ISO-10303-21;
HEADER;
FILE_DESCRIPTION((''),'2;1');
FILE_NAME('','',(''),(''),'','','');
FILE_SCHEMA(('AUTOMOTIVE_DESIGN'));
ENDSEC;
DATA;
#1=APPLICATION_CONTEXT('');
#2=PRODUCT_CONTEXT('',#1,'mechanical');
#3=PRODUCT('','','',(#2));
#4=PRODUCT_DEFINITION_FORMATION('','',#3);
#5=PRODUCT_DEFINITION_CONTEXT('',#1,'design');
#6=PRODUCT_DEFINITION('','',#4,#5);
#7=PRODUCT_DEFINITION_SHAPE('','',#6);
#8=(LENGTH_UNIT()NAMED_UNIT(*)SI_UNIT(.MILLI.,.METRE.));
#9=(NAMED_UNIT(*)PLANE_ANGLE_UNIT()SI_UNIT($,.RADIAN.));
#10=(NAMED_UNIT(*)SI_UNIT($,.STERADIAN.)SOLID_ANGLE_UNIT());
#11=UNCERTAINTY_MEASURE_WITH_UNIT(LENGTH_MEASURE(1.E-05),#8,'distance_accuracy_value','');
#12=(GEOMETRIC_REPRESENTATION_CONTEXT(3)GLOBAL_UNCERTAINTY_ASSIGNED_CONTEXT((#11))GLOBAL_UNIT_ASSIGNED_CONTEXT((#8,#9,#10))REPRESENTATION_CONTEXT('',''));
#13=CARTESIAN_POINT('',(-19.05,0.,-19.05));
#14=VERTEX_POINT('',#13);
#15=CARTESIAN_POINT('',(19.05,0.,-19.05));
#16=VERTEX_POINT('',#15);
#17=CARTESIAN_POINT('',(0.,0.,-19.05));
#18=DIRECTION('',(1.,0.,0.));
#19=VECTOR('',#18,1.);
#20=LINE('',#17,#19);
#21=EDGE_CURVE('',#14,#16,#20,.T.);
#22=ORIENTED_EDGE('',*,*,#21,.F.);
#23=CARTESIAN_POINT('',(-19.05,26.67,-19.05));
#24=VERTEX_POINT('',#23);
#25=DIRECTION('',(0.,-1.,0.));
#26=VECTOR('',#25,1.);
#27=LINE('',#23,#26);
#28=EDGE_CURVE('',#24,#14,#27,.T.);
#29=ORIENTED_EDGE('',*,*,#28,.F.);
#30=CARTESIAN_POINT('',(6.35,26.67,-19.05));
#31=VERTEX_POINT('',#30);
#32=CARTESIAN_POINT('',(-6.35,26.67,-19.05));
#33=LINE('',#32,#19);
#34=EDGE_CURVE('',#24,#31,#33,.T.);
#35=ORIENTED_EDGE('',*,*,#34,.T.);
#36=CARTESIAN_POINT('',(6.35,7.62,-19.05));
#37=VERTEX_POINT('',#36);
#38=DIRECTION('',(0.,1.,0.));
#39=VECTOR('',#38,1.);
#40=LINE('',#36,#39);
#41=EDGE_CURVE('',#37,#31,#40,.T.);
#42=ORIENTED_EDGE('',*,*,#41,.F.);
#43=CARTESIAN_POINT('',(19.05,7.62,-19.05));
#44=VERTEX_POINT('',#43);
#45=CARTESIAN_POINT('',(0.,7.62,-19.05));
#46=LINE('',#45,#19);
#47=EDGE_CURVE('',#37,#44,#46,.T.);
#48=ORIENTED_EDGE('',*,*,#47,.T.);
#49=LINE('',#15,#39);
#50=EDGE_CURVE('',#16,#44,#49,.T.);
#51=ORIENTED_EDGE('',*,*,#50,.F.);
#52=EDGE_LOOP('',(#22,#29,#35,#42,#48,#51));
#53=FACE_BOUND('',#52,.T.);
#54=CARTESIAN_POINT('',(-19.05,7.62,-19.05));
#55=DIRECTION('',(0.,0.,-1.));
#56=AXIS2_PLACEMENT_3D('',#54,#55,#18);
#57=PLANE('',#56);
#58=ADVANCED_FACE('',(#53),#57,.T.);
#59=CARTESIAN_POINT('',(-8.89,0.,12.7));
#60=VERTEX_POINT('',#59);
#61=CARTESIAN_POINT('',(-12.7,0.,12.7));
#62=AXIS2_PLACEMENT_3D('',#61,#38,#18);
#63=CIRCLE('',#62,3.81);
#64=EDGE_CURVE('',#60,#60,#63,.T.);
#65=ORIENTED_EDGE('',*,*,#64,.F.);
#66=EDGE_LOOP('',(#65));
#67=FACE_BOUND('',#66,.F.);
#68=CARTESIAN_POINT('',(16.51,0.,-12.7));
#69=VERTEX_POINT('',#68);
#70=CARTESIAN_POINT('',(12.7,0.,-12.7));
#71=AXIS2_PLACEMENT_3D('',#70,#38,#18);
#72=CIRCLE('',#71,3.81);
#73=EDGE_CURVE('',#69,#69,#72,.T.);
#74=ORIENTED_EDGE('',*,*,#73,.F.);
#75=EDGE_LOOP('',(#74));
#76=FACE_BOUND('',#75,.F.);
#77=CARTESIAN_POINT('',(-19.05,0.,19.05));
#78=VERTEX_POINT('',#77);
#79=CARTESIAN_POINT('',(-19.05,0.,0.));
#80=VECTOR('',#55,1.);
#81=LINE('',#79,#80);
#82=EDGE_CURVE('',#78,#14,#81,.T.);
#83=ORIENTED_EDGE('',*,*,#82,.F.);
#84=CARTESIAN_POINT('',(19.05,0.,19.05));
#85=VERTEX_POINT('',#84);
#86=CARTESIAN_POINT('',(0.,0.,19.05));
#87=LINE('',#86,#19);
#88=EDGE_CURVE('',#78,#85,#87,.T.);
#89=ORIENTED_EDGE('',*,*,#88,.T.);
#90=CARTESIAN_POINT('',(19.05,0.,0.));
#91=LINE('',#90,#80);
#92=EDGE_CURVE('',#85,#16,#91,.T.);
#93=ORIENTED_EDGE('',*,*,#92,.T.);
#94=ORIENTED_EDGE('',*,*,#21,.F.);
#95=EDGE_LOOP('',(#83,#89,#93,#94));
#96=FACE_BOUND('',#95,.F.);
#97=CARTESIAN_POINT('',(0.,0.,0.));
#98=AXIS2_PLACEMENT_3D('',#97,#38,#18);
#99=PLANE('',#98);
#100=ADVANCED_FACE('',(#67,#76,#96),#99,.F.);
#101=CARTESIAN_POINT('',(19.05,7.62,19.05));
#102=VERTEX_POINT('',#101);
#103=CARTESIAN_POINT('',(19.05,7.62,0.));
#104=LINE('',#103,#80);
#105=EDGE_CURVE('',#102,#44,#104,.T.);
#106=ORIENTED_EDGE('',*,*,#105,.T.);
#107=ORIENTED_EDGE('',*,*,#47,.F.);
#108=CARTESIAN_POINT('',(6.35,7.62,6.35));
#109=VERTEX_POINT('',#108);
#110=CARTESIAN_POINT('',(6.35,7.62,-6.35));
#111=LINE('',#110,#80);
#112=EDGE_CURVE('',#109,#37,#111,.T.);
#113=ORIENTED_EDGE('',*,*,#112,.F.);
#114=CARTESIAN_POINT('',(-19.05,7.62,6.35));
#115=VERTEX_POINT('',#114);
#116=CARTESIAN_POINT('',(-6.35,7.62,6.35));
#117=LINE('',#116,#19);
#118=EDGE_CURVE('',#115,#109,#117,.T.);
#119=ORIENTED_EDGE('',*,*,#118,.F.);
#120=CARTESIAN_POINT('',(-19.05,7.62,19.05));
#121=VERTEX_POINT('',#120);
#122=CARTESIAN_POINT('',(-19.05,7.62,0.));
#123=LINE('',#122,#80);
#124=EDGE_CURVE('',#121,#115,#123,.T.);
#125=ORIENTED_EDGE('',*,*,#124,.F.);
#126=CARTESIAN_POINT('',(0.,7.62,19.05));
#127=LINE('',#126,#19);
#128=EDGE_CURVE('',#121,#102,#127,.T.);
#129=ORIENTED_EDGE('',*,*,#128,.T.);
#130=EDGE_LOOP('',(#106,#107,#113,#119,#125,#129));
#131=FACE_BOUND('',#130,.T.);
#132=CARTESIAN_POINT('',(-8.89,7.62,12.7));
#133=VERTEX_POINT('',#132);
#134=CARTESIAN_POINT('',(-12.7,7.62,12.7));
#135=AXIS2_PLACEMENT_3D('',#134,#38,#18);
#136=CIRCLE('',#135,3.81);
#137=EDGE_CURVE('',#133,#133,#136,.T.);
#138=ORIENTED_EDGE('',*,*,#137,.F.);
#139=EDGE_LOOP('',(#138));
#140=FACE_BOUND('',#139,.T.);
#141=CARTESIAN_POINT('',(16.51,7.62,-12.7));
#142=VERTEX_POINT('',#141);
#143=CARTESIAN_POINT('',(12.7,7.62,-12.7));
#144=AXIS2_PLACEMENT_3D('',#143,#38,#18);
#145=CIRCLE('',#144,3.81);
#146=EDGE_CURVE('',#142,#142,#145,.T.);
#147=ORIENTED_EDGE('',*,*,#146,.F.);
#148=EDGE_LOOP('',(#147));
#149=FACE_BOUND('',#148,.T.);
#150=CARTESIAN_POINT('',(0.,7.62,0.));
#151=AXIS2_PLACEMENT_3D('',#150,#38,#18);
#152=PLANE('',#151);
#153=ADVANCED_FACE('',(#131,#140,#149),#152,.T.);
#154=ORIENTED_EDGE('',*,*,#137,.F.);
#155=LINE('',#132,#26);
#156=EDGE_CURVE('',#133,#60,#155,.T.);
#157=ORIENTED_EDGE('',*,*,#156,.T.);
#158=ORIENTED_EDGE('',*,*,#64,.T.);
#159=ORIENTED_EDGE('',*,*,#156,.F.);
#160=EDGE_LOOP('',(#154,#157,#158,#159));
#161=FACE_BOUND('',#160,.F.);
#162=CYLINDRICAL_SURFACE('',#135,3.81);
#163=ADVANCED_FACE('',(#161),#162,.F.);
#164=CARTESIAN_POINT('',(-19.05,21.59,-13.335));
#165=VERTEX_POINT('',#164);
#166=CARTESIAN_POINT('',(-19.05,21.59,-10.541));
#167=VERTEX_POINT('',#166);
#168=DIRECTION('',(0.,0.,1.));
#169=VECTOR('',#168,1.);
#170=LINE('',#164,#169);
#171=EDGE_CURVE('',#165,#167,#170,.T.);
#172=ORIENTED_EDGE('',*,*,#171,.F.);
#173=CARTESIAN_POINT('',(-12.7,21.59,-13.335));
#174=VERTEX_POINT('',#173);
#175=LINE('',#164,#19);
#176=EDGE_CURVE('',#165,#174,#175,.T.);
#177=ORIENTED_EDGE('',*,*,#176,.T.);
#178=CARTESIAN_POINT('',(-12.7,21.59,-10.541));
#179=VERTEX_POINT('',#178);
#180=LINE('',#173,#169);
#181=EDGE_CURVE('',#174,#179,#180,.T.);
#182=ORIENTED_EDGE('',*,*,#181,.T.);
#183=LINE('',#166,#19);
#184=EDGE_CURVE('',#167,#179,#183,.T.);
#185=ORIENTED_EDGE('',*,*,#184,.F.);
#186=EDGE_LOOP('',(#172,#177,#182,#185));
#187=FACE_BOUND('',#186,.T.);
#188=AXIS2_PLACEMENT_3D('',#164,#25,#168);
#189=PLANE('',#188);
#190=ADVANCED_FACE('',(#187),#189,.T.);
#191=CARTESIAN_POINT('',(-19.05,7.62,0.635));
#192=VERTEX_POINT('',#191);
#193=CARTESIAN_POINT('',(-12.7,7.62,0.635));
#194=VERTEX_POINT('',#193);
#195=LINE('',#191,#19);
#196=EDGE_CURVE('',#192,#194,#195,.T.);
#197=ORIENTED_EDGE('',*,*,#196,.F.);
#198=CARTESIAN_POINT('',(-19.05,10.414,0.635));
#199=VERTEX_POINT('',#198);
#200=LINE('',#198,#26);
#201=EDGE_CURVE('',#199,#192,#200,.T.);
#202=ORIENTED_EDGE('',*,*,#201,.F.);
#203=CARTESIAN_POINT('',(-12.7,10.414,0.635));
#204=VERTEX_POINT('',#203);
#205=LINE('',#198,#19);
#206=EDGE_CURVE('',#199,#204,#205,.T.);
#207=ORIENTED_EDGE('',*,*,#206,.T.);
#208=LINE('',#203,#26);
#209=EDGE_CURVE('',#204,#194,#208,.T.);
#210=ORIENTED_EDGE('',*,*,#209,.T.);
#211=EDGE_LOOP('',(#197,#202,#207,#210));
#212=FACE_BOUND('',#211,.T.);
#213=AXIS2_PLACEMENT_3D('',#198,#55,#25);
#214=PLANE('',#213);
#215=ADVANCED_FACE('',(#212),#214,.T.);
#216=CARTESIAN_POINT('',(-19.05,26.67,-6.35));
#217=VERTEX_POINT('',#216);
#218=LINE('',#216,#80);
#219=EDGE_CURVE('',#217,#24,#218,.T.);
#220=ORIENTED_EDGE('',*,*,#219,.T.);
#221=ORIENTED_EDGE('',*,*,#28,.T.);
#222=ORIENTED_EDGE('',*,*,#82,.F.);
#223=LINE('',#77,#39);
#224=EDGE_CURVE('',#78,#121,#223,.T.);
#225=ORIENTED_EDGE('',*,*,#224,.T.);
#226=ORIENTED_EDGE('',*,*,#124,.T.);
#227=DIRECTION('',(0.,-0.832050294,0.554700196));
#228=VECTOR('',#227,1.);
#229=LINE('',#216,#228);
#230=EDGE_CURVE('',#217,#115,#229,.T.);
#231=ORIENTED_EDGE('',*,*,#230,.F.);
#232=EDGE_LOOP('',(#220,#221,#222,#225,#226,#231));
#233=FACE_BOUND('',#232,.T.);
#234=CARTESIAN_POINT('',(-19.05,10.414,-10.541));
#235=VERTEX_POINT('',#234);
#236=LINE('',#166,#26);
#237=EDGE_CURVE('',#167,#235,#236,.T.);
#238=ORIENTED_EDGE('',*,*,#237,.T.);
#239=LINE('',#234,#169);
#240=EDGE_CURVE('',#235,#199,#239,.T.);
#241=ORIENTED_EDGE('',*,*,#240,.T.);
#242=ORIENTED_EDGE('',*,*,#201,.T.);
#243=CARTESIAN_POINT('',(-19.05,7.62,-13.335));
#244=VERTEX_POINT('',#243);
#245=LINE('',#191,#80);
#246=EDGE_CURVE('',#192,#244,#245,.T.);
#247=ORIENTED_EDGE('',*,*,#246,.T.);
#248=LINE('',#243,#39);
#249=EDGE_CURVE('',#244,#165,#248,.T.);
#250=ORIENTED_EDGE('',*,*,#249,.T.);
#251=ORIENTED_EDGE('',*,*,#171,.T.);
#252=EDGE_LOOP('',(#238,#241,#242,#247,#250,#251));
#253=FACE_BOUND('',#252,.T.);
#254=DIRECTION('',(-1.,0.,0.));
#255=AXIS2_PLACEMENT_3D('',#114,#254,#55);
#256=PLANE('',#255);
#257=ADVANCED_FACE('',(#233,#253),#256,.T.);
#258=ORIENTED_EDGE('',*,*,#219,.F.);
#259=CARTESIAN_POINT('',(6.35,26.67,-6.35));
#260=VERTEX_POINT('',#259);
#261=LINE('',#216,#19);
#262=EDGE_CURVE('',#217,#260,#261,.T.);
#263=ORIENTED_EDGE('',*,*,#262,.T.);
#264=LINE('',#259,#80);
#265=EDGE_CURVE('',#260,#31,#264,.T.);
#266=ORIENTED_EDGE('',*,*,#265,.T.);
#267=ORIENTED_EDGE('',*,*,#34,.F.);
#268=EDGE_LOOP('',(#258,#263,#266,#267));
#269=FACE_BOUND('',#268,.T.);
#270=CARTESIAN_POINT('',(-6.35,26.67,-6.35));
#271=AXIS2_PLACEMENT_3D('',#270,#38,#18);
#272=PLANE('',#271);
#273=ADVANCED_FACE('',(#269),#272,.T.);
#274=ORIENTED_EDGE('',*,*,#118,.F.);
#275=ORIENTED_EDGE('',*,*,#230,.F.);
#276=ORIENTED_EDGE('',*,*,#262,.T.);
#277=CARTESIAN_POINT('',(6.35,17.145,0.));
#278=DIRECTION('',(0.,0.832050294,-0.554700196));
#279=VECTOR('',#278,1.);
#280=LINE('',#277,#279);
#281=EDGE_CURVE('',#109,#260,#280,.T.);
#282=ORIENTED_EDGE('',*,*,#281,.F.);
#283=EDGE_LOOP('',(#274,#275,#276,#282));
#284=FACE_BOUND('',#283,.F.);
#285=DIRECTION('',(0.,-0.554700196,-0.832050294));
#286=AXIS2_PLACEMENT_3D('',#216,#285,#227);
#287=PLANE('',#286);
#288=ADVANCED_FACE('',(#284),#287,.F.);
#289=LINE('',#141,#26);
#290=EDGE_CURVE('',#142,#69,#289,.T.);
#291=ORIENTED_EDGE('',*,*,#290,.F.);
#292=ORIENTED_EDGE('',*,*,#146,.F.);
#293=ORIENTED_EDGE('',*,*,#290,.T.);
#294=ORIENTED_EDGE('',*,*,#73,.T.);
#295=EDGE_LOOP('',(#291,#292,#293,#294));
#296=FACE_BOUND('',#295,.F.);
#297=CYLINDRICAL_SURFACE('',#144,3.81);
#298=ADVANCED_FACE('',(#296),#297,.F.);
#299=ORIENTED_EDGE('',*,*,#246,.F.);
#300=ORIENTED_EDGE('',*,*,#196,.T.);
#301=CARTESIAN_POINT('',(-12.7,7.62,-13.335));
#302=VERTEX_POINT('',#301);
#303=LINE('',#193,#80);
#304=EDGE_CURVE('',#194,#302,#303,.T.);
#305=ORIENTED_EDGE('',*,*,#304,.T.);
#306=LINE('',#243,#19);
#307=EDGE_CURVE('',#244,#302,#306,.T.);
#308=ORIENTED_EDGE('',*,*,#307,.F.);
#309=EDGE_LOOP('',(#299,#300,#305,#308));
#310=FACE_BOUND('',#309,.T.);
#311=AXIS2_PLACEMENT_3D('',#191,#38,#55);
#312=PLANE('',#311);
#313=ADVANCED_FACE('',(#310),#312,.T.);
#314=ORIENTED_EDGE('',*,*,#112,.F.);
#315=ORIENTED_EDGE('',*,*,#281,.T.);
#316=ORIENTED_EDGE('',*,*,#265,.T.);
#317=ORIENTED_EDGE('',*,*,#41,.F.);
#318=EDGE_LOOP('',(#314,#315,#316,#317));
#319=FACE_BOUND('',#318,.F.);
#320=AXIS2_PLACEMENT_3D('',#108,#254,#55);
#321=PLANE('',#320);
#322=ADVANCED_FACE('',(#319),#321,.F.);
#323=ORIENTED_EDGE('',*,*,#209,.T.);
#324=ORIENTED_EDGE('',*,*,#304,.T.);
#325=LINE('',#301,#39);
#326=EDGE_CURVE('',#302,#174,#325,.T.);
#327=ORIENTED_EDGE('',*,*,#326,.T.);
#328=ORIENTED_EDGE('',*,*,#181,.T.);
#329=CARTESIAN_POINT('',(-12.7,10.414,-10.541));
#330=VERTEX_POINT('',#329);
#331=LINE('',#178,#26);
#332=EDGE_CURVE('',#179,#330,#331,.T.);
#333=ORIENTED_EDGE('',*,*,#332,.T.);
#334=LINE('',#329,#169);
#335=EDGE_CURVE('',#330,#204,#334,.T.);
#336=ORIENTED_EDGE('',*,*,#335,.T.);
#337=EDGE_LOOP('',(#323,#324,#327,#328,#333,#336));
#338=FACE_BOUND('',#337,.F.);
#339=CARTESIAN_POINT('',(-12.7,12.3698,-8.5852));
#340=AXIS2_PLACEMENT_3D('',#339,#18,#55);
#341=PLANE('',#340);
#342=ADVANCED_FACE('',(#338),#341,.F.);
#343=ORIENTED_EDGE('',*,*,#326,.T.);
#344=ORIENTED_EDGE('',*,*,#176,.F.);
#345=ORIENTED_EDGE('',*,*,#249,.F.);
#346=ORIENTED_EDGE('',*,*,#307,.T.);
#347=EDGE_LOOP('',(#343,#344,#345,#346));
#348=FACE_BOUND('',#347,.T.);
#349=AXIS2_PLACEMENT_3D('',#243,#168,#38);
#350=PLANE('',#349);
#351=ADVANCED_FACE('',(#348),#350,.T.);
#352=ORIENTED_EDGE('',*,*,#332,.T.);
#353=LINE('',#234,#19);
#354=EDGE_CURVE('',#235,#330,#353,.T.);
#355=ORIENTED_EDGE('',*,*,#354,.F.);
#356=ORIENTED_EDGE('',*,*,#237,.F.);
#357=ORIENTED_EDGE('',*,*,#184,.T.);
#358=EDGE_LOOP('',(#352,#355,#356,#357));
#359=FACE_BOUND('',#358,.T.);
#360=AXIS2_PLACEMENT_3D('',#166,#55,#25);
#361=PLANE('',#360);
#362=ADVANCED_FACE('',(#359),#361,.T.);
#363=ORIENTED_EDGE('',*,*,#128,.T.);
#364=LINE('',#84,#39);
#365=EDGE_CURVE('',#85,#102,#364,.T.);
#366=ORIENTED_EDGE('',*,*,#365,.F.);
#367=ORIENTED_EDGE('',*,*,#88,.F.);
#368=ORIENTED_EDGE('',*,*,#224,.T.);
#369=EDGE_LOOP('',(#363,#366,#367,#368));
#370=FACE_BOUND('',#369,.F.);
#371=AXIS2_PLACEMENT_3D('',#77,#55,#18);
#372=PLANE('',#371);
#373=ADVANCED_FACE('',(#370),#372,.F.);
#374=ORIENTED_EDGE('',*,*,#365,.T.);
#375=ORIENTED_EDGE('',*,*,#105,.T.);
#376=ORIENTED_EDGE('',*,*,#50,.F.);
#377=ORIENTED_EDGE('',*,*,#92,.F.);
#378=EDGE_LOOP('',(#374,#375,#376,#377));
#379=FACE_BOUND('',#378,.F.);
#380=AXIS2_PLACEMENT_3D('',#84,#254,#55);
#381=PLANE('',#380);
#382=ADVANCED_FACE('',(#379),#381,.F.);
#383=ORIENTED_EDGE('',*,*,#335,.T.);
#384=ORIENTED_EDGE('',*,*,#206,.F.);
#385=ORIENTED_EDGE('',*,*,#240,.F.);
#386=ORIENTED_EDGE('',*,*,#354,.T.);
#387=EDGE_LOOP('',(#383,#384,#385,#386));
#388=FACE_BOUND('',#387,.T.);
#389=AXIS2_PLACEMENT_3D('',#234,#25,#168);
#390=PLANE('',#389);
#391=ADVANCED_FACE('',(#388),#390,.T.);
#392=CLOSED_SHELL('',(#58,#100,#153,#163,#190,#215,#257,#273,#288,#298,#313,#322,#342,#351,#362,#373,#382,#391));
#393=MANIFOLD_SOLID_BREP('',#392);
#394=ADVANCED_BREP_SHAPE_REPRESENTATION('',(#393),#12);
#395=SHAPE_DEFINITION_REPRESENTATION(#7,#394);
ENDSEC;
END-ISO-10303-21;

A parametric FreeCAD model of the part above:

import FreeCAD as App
import Part
import Sketcher
Q = App.Units.Quantity

doc = App.newDocument("Part")
params = doc.addObject("Spreadsheet::Sheet", "Params")
for row, (alias, value) in enumerate([
    ("sketch1_width", "1.5 in"),
    ("pad1_length", "0.3 in"),
    ("sketch2_width", "1 in"),
    ("pad2_length", "0.75 in"),
    ("sketch3_diameter", "0.3 in"),
    ("sketch4_diameter", "0.3 in"),
    ("sketch5_width", "0.55 in"),
    ("sketch5_width2", "0.11 in"),
    ("pocket3_length", "0.25 in"),
    ("sketch6_height", "0.5 in"),
    ("sketch6_width", "0.75 in"),
], start=1):
    params.set(f"A{row}", alias)
    params.set(f"B{row}", "=" + value)
    params.setAlias(f"B{row}", alias)

body = doc.addObject("PartDesign::Body", "Body")

sketch1 = doc.addObject("Sketcher::SketchObject", "Sketch")
body.addObject(sketch1)
sketch1.AttachmentSupport = (doc.XZ_Plane, [""])
sketch1.MapMode = "FlatFace"
sketch1.addGeometry([
    Part.LineSegment(App.Vector(-19, -19, 0), App.Vector(-19, 19, 0)),
    Part.LineSegment(App.Vector(-19, 19, 0), App.Vector(19, 19, 0)),
    Part.LineSegment(App.Vector(19, 19, 0), App.Vector(19, -19, 0)),
    Part.LineSegment(App.Vector(19, -19, 0), App.Vector(-19, -19, 0)),
], False)
sketch1.addConstraint([
    Sketcher.Constraint("Coincident", 0, 2, 1, 1),
    Sketcher.Constraint("Coincident", 1, 2, 2, 1),
    Sketcher.Constraint("Coincident", 2, 2, 3, 1),
    Sketcher.Constraint("Coincident", 3, 2, 0, 1),
    Sketcher.Constraint("Vertical", 0),
    Sketcher.Constraint("Horizontal", 1),
    Sketcher.Constraint("Vertical", 2),
    Sketcher.Constraint("Horizontal", 3),
    Sketcher.Constraint("Symmetric", 0, 2, 2, 2, -1, 1),
    Sketcher.Constraint("Equal", 3, 0),
    Sketcher.Constraint("DistanceX", 1, 1, 1, 2, Q("1.5 in")),
])
sketch1.setExpression("Constraints[10]", "Params.sketch1_width")
pad1 = doc.addObject("PartDesign::Pad", "Pad")
body.addObject(pad1)
pad1.Profile = sketch1
pad1.setExpression("Length", "Params.pad1_length")
pad1.Reversed = True

sketch2 = doc.addObject("Sketcher::SketchObject", "Sketch001")
body.addObject(sketch2)
sketch2.AttachmentSupport = (doc.XZ_Plane, [""])
sketch2.MapMode = "FlatFace"
sketch2.AttachmentOffset = App.Placement(App.Vector(0, 0, -0.3 * 25.4), App.Rotation())
sketch2.addGeometry([
    Part.LineSegment(App.Vector(-19, -19, 0), App.Vector(-19, 6, 0)),
    Part.LineSegment(App.Vector(-19, 6, 0), App.Vector(6, 6, 0)),
    Part.LineSegment(App.Vector(6, 6, 0), App.Vector(6, -19, 0)),
    Part.LineSegment(App.Vector(6, -19, 0), App.Vector(-19, -19, 0)),
], False)
sketch2.addConstraint([
    Sketcher.Constraint("Coincident", 0, 2, 1, 1),
    Sketcher.Constraint("Coincident", 1, 2, 2, 1),
    Sketcher.Constraint("Coincident", 2, 2, 3, 1),
    Sketcher.Constraint("Coincident", 3, 2, 0, 1),
    Sketcher.Constraint("Vertical", 0),
    Sketcher.Constraint("Horizontal", 1),
    Sketcher.Constraint("Vertical", 2),
    Sketcher.Constraint("Horizontal", 3),
    Sketcher.Constraint("Equal", 3, 0),
    Sketcher.Constraint("DistanceX", 1, 1, 1, 2, Q("1 in")),
    Sketcher.Constraint("DistanceX", 0, 2, -1, 1, Q("0.75 in")),
    Sketcher.Constraint("DistanceY", -1, 1, 0, 2, Q("0.25 in")),
])
sketch2.setExpression("Constraints[9]", "Params.sketch2_width")
pad2 = doc.addObject("PartDesign::Pad", "Pad001")
body.addObject(pad2)
pad2.Profile = sketch2
pad2.setExpression("Length", "Params.pad2_length")
pad2.Reversed = True

sketch3 = doc.addObject("Sketcher::SketchObject", "Sketch002")
body.addObject(sketch3)
sketch3.AttachmentSupport = (doc.XZ_Plane, [""])
sketch3.MapMode = "FlatFace"
sketch3.AttachmentOffset = App.Placement(App.Vector(0, 0, -0.3 * 25.4), App.Rotation())
sketch3.addGeometry(Part.Circle(App.Vector(12.7, -12.7, 0), App.Vector(0, 0, 1), 3.8), False)
sketch3.addConstraint([
    Sketcher.Constraint("Diameter", 0, Q("0.3 in")),
    Sketcher.Constraint("DistanceX", -1, 1, 0, 3, Q("0.5 in")),
    Sketcher.Constraint("DistanceY", 0, 3, -1, 1, Q("0.5 in")),
])
sketch3.setExpression("Constraints[0]", "Params.sketch3_diameter")
pocket1 = doc.addObject("PartDesign::Pocket", "Pocket")
body.addObject(pocket1)
pocket1.Profile = sketch3
pocket1.Type = "UpToFirst"
pocket1.Reversed = True

sketch4 = doc.addObject("Sketcher::SketchObject", "Sketch003")
body.addObject(sketch4)
sketch4.AttachmentSupport = (doc.XZ_Plane, [""])
sketch4.MapMode = "FlatFace"
sketch4.AttachmentOffset = App.Placement(App.Vector(0, 0, -0.3 * 25.4), App.Rotation())
sketch4.addGeometry(Part.Circle(App.Vector(-12.7, 12.7, 0), App.Vector(0, 0, 1), 3.8), False)
sketch4.addConstraint([
    Sketcher.Constraint("Diameter", 0, Q("0.3 in")),
    Sketcher.Constraint("DistanceX", 0, 3, -1, 1, Q("0.5 in")),
    Sketcher.Constraint("DistanceY", -1, 1, 0, 3, Q("0.5 in")),
])
sketch4.setExpression("Constraints[0]", "Params.sketch4_diameter")
pocket2 = doc.addObject("PartDesign::Pocket", "Pocket001")
body.addObject(pocket2)
pocket2.Profile = sketch4
pocket2.Type = "UpToFirst"
pocket2.Reversed = True

sketch5 = doc.addObject("Sketcher::SketchObject", "Sketch004")
body.addObject(sketch5)
sketch5.AttachmentSupport = (doc.YZ_Plane, [""])
sketch5.MapMode = "FlatFace"
sketch5.AttachmentOffset = App.Placement(App.Vector(0, 0, -0.75 * 25.4), App.Rotation())
sketch5.addGeometry([
    Part.LineSegment(App.Vector(21.6, -10.5, 0), App.Vector(21.6, -13.3, 0)),
    Part.LineSegment(App.Vector(21.6, -13.3, 0), App.Vector(7.6, -13.3, 0)),
    Part.LineSegment(App.Vector(7.6, -13.3, 0), App.Vector(7.6, 0.6, 0)),
    Part.LineSegment(App.Vector(7.6, 0.6, 0), App.Vector(10.4, 0.6, 0)),
    Part.LineSegment(App.Vector(10.4, 0.6, 0), App.Vector(10.4, -10.5, 0)),
    Part.LineSegment(App.Vector(10.4, -10.5, 0), App.Vector(21.6, -10.5, 0)),
], False)
sketch5.addConstraint([
    Sketcher.Constraint("Coincident", 0, 2, 1, 1),
    Sketcher.Constraint("Coincident", 1, 2, 2, 1),
    Sketcher.Constraint("Coincident", 2, 2, 3, 1),
    Sketcher.Constraint("Coincident", 3, 2, 4, 1),
    Sketcher.Constraint("Coincident", 4, 2, 5, 1),
    Sketcher.Constraint("Coincident", 5, 2, 0, 1),
    Sketcher.Constraint("Vertical", 0),
    Sketcher.Constraint("Horizontal", 1),
    Sketcher.Constraint("Vertical", 2),
    Sketcher.Constraint("Horizontal", 3),
    Sketcher.Constraint("Vertical", 4),
    Sketcher.Constraint("Horizontal", 5),
    Sketcher.Constraint("Equal", 3, 0),
    Sketcher.Constraint("Equal", 1, 2),
    Sketcher.Constraint("DistanceX", 1, 2, 1, 1, Q("0.55 in")),
    Sketcher.Constraint("DistanceX", 3, 1, 3, 2, Q("0.11 in")),
    Sketcher.Constraint("DistanceX", -1, 1, 1, 2, Q("0.3 in")),
    Sketcher.Constraint("DistanceY", 0, 2, -1, 1, Q("0.525 in")),
])
sketch5.setExpression("Constraints[14]", "Params.sketch5_width")
sketch5.setExpression("Constraints[15]", "Params.sketch5_width2")
pocket3 = doc.addObject("PartDesign::Pocket", "Pocket002")
body.addObject(pocket3)
pocket3.Profile = sketch5
pocket3.setExpression("Length", "Params.pocket3_length")
pocket3.Reversed = True

sketch6 = doc.addObject("Sketcher::SketchObject", "Sketch005")
body.addObject(sketch6)
sketch6.AttachmentSupport = (doc.YZ_Plane, [""])
sketch6.MapMode = "FlatFace"
sketch6.AttachmentOffset = App.Placement(App.Vector(0, 0, -0.75 * 25.4), App.Rotation())
sketch6.addGeometry([
    Part.LineSegment(App.Vector(27, -6, 0), App.Vector(8, 6, 0)),
    Part.LineSegment(App.Vector(8, 6, 0), App.Vector(27, 6, 0)),
    Part.LineSegment(App.Vector(27, 6, 0), App.Vector(27, -6, 0)),
], False)
sketch6.addConstraint([
    Sketcher.Constraint("Coincident", 0, 2, 1, 1),
    Sketcher.Constraint("Coincident", 1, 2, 2, 1),
    Sketcher.Constraint("Coincident", 2, 2, 0, 1),
    Sketcher.Constraint("Horizontal", 1),
    Sketcher.Constraint("Vertical", 2),
    Sketcher.Constraint("DistanceY", 2, 2, 2, 1, Q("0.5 in")),
    Sketcher.Constraint("DistanceX", 1, 1, 1, 2, Q("0.75 in")),
    Sketcher.Constraint("DistanceX", -1, 1, 0, 2, Q("0.3 in")),
    Sketcher.Constraint("DistanceY", -1, 1, 0, 2, Q("0.25 in")),
])
sketch6.setExpression("Constraints[5]", "Params.sketch6_height")
sketch6.setExpression("Constraints[6]", "Params.sketch6_width")
pocket4 = doc.addObject("PartDesign::Pocket", "Pocket003")
body.addObject(pocket4)
pocket4.Profile = sketch6
pocket4.Type = "UpToFirst"
pocket4.Reversed = True

doc.recompute()
